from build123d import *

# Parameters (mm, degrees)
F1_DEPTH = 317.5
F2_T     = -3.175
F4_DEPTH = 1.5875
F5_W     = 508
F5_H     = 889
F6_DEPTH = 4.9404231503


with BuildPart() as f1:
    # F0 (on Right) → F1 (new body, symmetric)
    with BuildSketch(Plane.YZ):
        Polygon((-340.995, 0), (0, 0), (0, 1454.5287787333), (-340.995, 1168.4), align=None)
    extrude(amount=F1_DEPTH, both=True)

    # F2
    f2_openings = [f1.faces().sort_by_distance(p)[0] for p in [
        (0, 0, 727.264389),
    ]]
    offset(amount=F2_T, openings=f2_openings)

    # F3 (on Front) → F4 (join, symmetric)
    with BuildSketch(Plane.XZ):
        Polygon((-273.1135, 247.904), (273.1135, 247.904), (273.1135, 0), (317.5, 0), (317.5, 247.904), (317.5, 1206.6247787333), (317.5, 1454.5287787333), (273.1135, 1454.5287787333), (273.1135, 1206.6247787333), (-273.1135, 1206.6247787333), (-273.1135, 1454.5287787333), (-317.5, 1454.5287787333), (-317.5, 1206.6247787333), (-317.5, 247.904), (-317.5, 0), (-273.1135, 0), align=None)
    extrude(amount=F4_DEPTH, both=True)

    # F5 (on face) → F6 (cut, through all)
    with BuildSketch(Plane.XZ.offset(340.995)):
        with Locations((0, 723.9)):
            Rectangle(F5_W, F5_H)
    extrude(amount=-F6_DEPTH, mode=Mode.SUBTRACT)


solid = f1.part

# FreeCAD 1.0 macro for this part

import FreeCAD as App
import Part
import Sketcher

V = App.Vector
Q = App.Units.Quantity


def faces_at(feature, points):
    """Names of the faces that lie closest to the given points."""
    faces = feature.Shape.Faces
    near = lambda p: min(range(len(faces)), key=lambda i: faces[i].distToShape(Part.Vertex(*p))[0])
    return sorted({f"Face{near(p) + 1}" for p in points})


def add_polygon(sketch, points):
    """Adds a closed chain of lines whose ends are joined by coincident constraints."""
    first, n = sketch.GeometryCount, len(points)
    for a, b in zip(points, points[1:] + points[:1]):
        sketch.addGeometry(Part.LineSegment(App.Vector(*a, 0), App.Vector(*b, 0)), False)
    for i in range(n):
        sketch.addConstraint(Sketcher.Constraint("Coincident", first + i, 2, first + (i + 1) % n, 1))

doc = App.newDocument("Part")
params = doc.addObject("Spreadsheet::Sheet", "Params")
for row, (alias, value) in enumerate([
    ("sketch1_height", "46 in"),
    ("sketch1_width", "13.425 in"),
    ("pad1_length", "25 in"),
    ("thickness_wall", "0.125 in"),
    ("sketch2_height", "9.76 in"),
    ("sketch2_width", "21.505 in"),
    ("pad2_length", "0.125 in"),
    ("sketch3_width", "20 in"),
    ("sketch3_height", "35 in"),
    ("pocket1_length", "4.940423 mm"),
], start=1):
    params.set(f"A{row}", alias)
    params.set(f"B{row}", "=" + value)
    params.setAlias(f"B{row}", alias)

body = doc.addObject("PartDesign::Body", "Body")

# Sketch on YZ plane
sketch1 = body.newObject("Sketcher::SketchObject", "Sketch")
sketch1.AttachmentSupport = (doc.getObject("YZ_Plane"), [""])
sketch1.MapMode = "FlatFace"
add_polygon(sketch1, [(-341, 0), (0, 0), (0, 1455), (-341, 1168)])  # lines 0-3
sketch1.addConstraint([
    Sketcher.Constraint("Horizontal", 0),
    Sketcher.Constraint("Vertical", 1),
    Sketcher.Constraint("Vertical", 3),
    Sketcher.Constraint("Coincident", 0, 2, -1, 1),
    Sketcher.Constraint("DistanceY", 3, 2, 3, 1, Q("46 in")),
    Sketcher.Constraint("Angle", 2, Q("-140 deg")),
    Sketcher.Constraint("DistanceX", 0, 1, 0, 2, Q("13.425 in")),
])
sketch1.setExpression("Constraints[8]", "Params.sketch1_height")
sketch1.setExpression("Constraints[10]", "Params.sketch1_width")
pad1 = body.newObject("PartDesign::Pad", "Pad")
pad1.Profile = sketch1
pad1.setExpression("Length", "Params.pad1_length")
pad1.Midplane = True
doc.recompute()

thickness = body.newObject("PartDesign::Thickness", "Thickness")
thickness.Base = (pad1, faces_at(pad1, [(0, 0, 727.264)]))
thickness.setExpression("Value", "Params.thickness_wall")
thickness.Reversed = True
thickness.Join = "Arc"

# Sketch on XZ plane
sketch2 = body.newObject("Sketcher::SketchObject", "Sketch001")
sketch2.AttachmentSupport = (doc.getObject("XZ_Plane"), [""])
sketch2.MapMode = "FlatFace"
add_polygon(sketch2, [(-273, 248), (273, 248), (273, 0), (318, 0), (318, 1455), (273, 1455), (273, 1207), (-273, 1207), (-273, 1455), (-318, 1455), (-318, 0), (-273, 0)])  # lines 0-11
sketch2.addConstraint([
    Sketcher.Constraint("Horizontal", 0),
    Sketcher.Constraint("Vertical", 1),
    Sketcher.Constraint("Horizontal", 2),
    Sketcher.Constraint("Vertical", 3),
    Sketcher.Constraint("Horizontal", 4),
    Sketcher.Constraint("Vertical", 5),
    Sketcher.Constraint("Horizontal", 6),
    Sketcher.Constraint("Vertical", 7),
    Sketcher.Constraint("Horizontal", 8),
    Sketcher.Constraint("Vertical", 9),
    Sketcher.Constraint("Horizontal", 10),
    Sketcher.Constraint("Vertical", 11),
    Sketcher.Constraint("Symmetric", 2, 2, 9, 2, -1, 1),
    Sketcher.Constraint("Symmetric", 4, 2, 7, 2, -2),
    Sketcher.Constraint("Symmetric", 1, 2, 10, 2, -2),
    Sketcher.Constraint("Vertical", 1, 2, 4, 2),
    Sketcher.Constraint("Equal", 1, 5),
    Sketcher.Constraint("DistanceX", 8, 2, 3, 2, Q("25 in")),
    Sketcher.Constraint("DistanceY", 1, 2, 1, 1, Q("9.76 in")),
    Sketcher.Constraint("DistanceX", 0, 1, 0, 2, Q("21.505 in")),
    Sketcher.Constraint("DistanceY", 3, 1, 3, 2, Q("1454.528779 mm")),
])
sketch2.setExpression("Constraints[30]", "Params.sketch2_height")
sketch2.setExpression("Constraints[31]", "Params.sketch2_width")
pad2 = body.newObject("PartDesign::Pad", "Pad001")
pad2.Profile = sketch2
pad2.setExpression("Length", "Params.pad2_length")
pad2.Midplane = True

# Sketch on XZ plane
sketch3 = body.newObject("Sketcher::SketchObject", "Sketch002")
sketch3.AttachmentSupport = (doc.getObject("XZ_Plane"), [""])
sketch3.MapMode = "FlatFace"
sketch3.AttachmentOffset = App.Placement(V(0, 0, 13.425 * 25.4), App.Rotation())
add_polygon(sketch3, [(-254, 1168), (-254, 279), (254, 279), (254, 1168)])  # lines 0-3
sketch3.addConstraint([
    Sketcher.Constraint("Vertical", 0),
    Sketcher.Constraint("Horizontal", 1),
    Sketcher.Constraint("Vertical", 2),
    Sketcher.Constraint("Horizontal", 3),
    Sketcher.Constraint("DistanceX", 1, 1, 1, 2, Q("20 in")),
    Sketcher.Constraint("DistanceY", 0, 2, 0, 1, Q("35 in")),
    Sketcher.Constraint("DistanceX", 0, 2, -1, 1, Q("10 in")),
    Sketcher.Constraint("DistanceY", -1, 1, 0, 2, Q("11 in")),
])
sketch3.setExpression("Constraints[8]", "Params.sketch3_width")
sketch3.setExpression("Constraints[9]", "Params.sketch3_height")
pocket1 = body.newObject("PartDesign::Pocket", "Pocket")
pocket1.Profile = sketch3
pocket1.setExpression("Length", "Params.pocket1_length")

doc.recompute()
